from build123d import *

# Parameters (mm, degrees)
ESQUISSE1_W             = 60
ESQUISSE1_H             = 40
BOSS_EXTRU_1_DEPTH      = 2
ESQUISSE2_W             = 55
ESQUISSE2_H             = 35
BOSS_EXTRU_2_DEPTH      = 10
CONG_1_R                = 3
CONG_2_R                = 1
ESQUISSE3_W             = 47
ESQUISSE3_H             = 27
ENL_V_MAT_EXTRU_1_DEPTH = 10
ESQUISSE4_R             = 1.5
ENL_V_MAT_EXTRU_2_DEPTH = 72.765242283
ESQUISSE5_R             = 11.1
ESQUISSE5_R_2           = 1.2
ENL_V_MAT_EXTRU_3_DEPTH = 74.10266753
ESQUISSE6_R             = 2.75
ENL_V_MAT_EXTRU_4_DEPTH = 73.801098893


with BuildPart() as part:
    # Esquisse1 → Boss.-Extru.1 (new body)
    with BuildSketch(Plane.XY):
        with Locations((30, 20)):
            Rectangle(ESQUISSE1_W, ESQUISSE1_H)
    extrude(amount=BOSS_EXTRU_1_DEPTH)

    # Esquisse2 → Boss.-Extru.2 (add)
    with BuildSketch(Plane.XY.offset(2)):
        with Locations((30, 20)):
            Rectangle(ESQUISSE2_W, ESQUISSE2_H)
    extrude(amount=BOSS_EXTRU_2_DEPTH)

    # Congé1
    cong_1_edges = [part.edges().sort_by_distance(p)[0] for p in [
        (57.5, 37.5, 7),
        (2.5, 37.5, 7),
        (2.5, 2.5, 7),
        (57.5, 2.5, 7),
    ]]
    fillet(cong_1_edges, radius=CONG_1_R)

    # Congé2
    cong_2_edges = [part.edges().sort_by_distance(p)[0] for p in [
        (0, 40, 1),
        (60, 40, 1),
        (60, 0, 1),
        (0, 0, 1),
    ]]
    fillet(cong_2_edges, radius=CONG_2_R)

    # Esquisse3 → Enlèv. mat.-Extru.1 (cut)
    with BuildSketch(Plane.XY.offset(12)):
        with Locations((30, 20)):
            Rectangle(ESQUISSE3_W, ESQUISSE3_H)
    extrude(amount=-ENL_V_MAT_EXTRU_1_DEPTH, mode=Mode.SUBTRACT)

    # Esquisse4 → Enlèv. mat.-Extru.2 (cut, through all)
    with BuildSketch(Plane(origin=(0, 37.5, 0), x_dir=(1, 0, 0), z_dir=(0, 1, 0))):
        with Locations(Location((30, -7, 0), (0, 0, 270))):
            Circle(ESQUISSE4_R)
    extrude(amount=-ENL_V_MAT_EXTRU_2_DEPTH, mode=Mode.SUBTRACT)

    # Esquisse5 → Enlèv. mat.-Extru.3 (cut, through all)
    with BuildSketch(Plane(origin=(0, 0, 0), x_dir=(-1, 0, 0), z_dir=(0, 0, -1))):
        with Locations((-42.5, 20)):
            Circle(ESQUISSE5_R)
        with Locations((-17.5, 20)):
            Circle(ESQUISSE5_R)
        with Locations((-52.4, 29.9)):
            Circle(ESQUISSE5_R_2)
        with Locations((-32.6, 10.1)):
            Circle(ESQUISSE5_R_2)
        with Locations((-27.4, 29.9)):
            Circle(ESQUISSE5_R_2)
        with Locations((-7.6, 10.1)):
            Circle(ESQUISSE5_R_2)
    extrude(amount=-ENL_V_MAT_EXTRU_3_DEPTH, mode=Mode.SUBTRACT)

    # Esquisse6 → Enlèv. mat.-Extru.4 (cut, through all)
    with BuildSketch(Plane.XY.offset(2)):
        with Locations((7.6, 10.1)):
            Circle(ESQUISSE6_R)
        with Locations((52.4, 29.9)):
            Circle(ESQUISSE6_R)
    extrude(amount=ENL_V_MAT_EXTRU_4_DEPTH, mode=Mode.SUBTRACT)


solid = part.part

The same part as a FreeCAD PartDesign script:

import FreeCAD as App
import Part
import Sketcher
from FreeCAD import Vector


def edges_at(feature, points):
    """Names of the edges that pass closest to the given points."""
    edges = feature.Shape.Edges
    near = lambda p: min(range(len(edges)), key=lambda i: edges[i].distToShape(Part.Vertex(*p))[0])
    return sorted({f"Edge{near(p) + 1}" for p in points})

doc = App.newDocument("Part")
body = doc.addObject("PartDesign::Body", "Body")

sketch1 = doc.addObject("Sketcher::SketchObject", "Sketch")
body.addObject(sketch1)
sketch1.AttachmentSupport = (doc.XY_Plane, [""])
sketch1.MapMode = "FlatFace"
sketch1.addGeometry([
    Part.LineSegment(Vector(0, 40, 0), Vector(0, 0, 0)),
    Part.LineSegment(Vector(0, 0, 0), Vector(60, 0, 0)),
    Part.LineSegment(Vector(60, 0, 0), Vector(60, 40, 0)),
    Part.LineSegment(Vector(60, 40, 0), Vector(0, 40, 0)),
], False)
sketch1.addConstraint([
    Sketcher.Constraint("Coincident", 0, 2, 1, 1),
    Sketcher.Constraint("Coincident", 1, 2, 2, 1),
    Sketcher.Constraint("Coincident", 2, 2, 3, 1),
    Sketcher.Constraint("Coincident", 3, 2, 0, 1),
    Sketcher.Constraint("Vertical", 0),
    Sketcher.Constraint("Horizontal", 1),
    Sketcher.Constraint("Vertical", 2),
    Sketcher.Constraint("Horizontal", 3),
    Sketcher.Constraint("Coincident", 0, 2, -1, 1),
    Sketcher.Constraint("DistanceX", 1, 1, 1, 2, 60.0),
    Sketcher.Constraint("DistanceY", 0, 2, 0, 1, 40.0),
])
pad1 = doc.addObject("PartDesign::Pad", "Pad")
body.addObject(pad1)
pad1.Profile = sketch1
pad1.Length = 2

sketch2 = doc.addObject("Sketcher::SketchObject", "Sketch001")
body.addObject(sketch2)
sketch2.AttachmentSupport = (doc.XY_Plane, [""])
sketch2.MapMode = "FlatFace"
sketch2.AttachmentOffset = App.Placement(Vector(0, 0, 2), App.Rotation())
sketch2.addGeometry([
    Part.LineSegment(Vector(2, 38, 0), Vector(2, 2, 0)),
    Part.LineSegment(Vector(2, 2, 0), Vector(58, 2, 0)),
    Part.LineSegment(Vector(58, 2, 0), Vector(58, 38, 0)),
    Part.LineSegment(Vector(58, 38, 0), Vector(2, 38, 0)),
], False)
sketch2.addConstraint([
    Sketcher.Constraint("Coincident", 0, 2, 1, 1),
    Sketcher.Constraint("Coincident", 1, 2, 2, 1),
    Sketcher.Constraint("Coincident", 2, 2, 3, 1),
    Sketcher.Constraint("Coincident", 3, 2, 0, 1),
    Sketcher.Constraint("Vertical", 0),
    Sketcher.Constraint("Horizontal", 1),
    Sketcher.Constraint("Vertical", 2),
    Sketcher.Constraint("Horizontal", 3),
    Sketcher.Constraint("DistanceX", 1, 1, 1, 2, 55.0),
    Sketcher.Constraint("DistanceY", 0, 2, 0, 1, 35.0),
    Sketcher.Constraint("DistanceX", -1, 1, 0, 2, 2.5),
    Sketcher.Constraint("DistanceY", -1, 1, 0, 2, 2.5),
])
pad2 = doc.addObject("PartDesign::Pad", "Pad001")
body.addObject(pad2)
pad2.Profile = sketch2
pad2.Length = 10
doc.recompute()

fillet = doc.addObject("PartDesign::Fillet", "Fillet")
body.addObject(fillet)
fillet.Base = (pad2, edges_at(pad2, [
    (57.5, 37.5, 7),
    (2.5, 37.5, 7),
    (2.5, 2.5, 7),
    (57.5, 2.5, 7),
]))
fillet.Radius = 3
doc.recompute()

fillet2 = doc.addObject("PartDesign::Fillet", "Fillet001")
body.addObject(fillet2)
fillet2.Base = (fillet, edges_at(fillet, [
    (0, 40, 1),
    (60, 40, 1),
    (60, 0, 1),
    (0, 0, 1),
]))
fillet2.Radius = 1

sketch3 = doc.addObject("Sketcher::SketchObject", "Sketch002")
body.addObject(sketch3)
sketch3.AttachmentSupport = (doc.XY_Plane, [""])
sketch3.MapMode = "FlatFace"
sketch3.AttachmentOffset = App.Placement(Vector(0, 0, 12), App.Rotation())
sketch3.addGeometry([
    Part.LineSegment(Vector(6, 34, 0), Vector(6, 6, 0)),
    Part.LineSegment(Vector(6, 6, 0), Vector(54, 6, 0)),
    Part.LineSegment(Vector(54, 6, 0), Vector(54, 34, 0)),
    Part.LineSegment(Vector(54, 34, 0), Vector(6, 34, 0)),
], False)
sketch3.addConstraint([
    Sketcher.Constraint("Coincident", 0, 2, 1, 1),
    Sketcher.Constraint("Coincident", 1, 2, 2, 1),
    Sketcher.Constraint("Coincident", 2, 2, 3, 1),
    Sketcher.Constraint("Coincident", 3, 2, 0, 1),
    Sketcher.Constraint("Vertical", 0),
    Sketcher.Constraint("Horizontal", 1),
    Sketcher.Constraint("Vertical", 2),
    Sketcher.Constraint("Horizontal", 3),
    Sketcher.Constraint("DistanceX", 1, 1, 1, 2, 47.0),
    Sketcher.Constraint("DistanceY", 0, 2, 0, 1, 27.0),
    Sketcher.Constraint("DistanceX", -1, 1, 0, 2, 6.5),
    Sketcher.Constraint("DistanceY", -1, 1, 0, 2, 6.5),
])
pocket1 = doc.addObject("PartDesign::Pocket", "Pocket")
body.addObject(pocket1)
pocket1.Profile = sketch3
pocket1.Length = 10

sketch4 = doc.addObject("Sketcher::SketchObject", "Sketch003")
body.addObject(sketch4)
sketch4.AttachmentSupport = (doc.XZ_Plane, [""])
sketch4.MapMode = "FlatFace"
sketch4.AttachmentOffset = App.Placement(Vector(0, 0, -37.5), App.Rotation())
sketch4.addGeometry(Part.Circle(Vector(30, 7, 0), Vector(0, 0, 1), 1.5), False)
sketch4.addConstraint([
    Sketcher.Constraint("Diameter", 0, 3.0),
    Sketcher.Constraint("DistanceX", -1, 1, 0, 3, 30.0),
    Sketcher.Constraint("DistanceY", -1, 1, 0, 3, 7.0),
])
pocket2 = doc.addObject("PartDesign::Pocket", "Pocket001")
body.addObject(pocket2)
pocket2.Profile = sketch4
pocket2.Type = "ThroughAll"
pocket2.Reversed = True

sketch5 = doc.addObject("Sketcher::SketchObject", "Sketch004")
body.addObject(sketch5)
sketch5.AttachmentSupport = (doc.XY_Plane, [""])
sketch5.MapMode = "FlatFace"
sketch5.addGeometry([
    Part.Circle(Vector(42.5, 20, 0), Vector(0, 0, 1), 11.1),
    Part.Circle(Vector(17.5, 20, 0), Vector(0, 0, 1), 11.1),
    Part.Circle(Vector(52.4, 29.9, 0), Vector(0, 0, 1), 1.2),
    Part.Circle(Vector(32.6, 10.1, 0), Vector(0, 0, 1), 1.2),
    Part.Circle(Vector(27.4, 29.9, 0), Vector(0, 0, 1), 1.2),
    Part.Circle(Vector(7.6, 10.1, 0), Vector(0, 0, 1), 1.2),
], False)
sketch5.addConstraint([
    Sketcher.Constraint("Equal", 0, 1),
    Sketcher.Constraint("Equal", 2, 3),
    Sketcher.Constraint("Equal", 3, 4),
    Sketcher.Constraint("Equal", 4, 5),
    Sketcher.Constraint("Horizontal", 0, 3, 1, 3),
    Sketcher.Constraint("Horizontal", 2, 3, 4, 3),
    Sketcher.Constraint("Horizontal", 3, 3, 5, 3),
    Sketcher.Constraint("Diameter", 0, 22.2),
    Sketcher.Constraint("Diameter", 2, 2.4),
    Sketcher.Constraint("DistanceY", -1, 1, 0, 3, 20.0),
    Sketcher.Constraint("DistanceX", 1, 3, 0, 3, 25.0),
    Sketcher.Constraint("DistanceX", 4, 3, 2, 3, 25.0),
    Sketcher.Constraint("DistanceX", 5, 3, 3, 3, 25.0),
    Sketcher.Constraint("DistanceX", -1, 1, 0, 3, 42.5),
    Sketcher.Constraint("DistanceX", -1, 1, 2, 3, 52.4),
    Sketcher.Constraint("DistanceY", -1, 1, 2, 3, 29.9),
    Sketcher.Constraint("DistanceX", -1, 1, 3, 3, 32.6),
    Sketcher.Constraint("DistanceY", -1, 1, 3, 3, 10.1),
])
pocket3 = doc.addObject("PartDesign::Pocket", "Pocket002")
body.addObject(pocket3)
pocket3.Profile = sketch5
pocket3.Type = "ThroughAll"
pocket3.Reversed = True

sketch6 = doc.addObject("Sketcher::SketchObject", "Sketch005")
body.addObject(sketch6)
sketch6.AttachmentSupport = (doc.XY_Plane, [""])
sketch6.MapMode = "FlatFace"
sketch6.AttachmentOffset = App.Placement(Vector(0, 0, 2), App.Rotation())
sketch6.addGeometry([
    Part.Circle(Vector(7.6, 10.1, 0), Vector(0, 0, 1), 2.8),
    Part.Circle(Vector(52.4, 29.9, 0), Vector(0, 0, 1), 2.8),
], False)
sketch6.addConstraint([
    Sketcher.Constraint("Equal", 0, 1),
    Sketcher.Constraint("Diameter", 0, 5.5),
    Sketcher.Constraint("DistanceX", -1, 1, 0, 3, 7.6),
    Sketcher.Constraint("DistanceY", -1, 1, 0, 3, 10.1),
    Sketcher.Constraint("DistanceX", -1, 1, 1, 3, 52.4),
    Sketcher.Constraint("DistanceY", -1, 1, 1, 3, 29.9),
])
pocket4 = doc.addObject("PartDesign::Pocket", "Pocket003")
body.addObject(pocket4)
pocket4.Profile = sketch6
pocket4.Type = "ThroughAll"
pocket4.Reversed = True

doc.recompute()
